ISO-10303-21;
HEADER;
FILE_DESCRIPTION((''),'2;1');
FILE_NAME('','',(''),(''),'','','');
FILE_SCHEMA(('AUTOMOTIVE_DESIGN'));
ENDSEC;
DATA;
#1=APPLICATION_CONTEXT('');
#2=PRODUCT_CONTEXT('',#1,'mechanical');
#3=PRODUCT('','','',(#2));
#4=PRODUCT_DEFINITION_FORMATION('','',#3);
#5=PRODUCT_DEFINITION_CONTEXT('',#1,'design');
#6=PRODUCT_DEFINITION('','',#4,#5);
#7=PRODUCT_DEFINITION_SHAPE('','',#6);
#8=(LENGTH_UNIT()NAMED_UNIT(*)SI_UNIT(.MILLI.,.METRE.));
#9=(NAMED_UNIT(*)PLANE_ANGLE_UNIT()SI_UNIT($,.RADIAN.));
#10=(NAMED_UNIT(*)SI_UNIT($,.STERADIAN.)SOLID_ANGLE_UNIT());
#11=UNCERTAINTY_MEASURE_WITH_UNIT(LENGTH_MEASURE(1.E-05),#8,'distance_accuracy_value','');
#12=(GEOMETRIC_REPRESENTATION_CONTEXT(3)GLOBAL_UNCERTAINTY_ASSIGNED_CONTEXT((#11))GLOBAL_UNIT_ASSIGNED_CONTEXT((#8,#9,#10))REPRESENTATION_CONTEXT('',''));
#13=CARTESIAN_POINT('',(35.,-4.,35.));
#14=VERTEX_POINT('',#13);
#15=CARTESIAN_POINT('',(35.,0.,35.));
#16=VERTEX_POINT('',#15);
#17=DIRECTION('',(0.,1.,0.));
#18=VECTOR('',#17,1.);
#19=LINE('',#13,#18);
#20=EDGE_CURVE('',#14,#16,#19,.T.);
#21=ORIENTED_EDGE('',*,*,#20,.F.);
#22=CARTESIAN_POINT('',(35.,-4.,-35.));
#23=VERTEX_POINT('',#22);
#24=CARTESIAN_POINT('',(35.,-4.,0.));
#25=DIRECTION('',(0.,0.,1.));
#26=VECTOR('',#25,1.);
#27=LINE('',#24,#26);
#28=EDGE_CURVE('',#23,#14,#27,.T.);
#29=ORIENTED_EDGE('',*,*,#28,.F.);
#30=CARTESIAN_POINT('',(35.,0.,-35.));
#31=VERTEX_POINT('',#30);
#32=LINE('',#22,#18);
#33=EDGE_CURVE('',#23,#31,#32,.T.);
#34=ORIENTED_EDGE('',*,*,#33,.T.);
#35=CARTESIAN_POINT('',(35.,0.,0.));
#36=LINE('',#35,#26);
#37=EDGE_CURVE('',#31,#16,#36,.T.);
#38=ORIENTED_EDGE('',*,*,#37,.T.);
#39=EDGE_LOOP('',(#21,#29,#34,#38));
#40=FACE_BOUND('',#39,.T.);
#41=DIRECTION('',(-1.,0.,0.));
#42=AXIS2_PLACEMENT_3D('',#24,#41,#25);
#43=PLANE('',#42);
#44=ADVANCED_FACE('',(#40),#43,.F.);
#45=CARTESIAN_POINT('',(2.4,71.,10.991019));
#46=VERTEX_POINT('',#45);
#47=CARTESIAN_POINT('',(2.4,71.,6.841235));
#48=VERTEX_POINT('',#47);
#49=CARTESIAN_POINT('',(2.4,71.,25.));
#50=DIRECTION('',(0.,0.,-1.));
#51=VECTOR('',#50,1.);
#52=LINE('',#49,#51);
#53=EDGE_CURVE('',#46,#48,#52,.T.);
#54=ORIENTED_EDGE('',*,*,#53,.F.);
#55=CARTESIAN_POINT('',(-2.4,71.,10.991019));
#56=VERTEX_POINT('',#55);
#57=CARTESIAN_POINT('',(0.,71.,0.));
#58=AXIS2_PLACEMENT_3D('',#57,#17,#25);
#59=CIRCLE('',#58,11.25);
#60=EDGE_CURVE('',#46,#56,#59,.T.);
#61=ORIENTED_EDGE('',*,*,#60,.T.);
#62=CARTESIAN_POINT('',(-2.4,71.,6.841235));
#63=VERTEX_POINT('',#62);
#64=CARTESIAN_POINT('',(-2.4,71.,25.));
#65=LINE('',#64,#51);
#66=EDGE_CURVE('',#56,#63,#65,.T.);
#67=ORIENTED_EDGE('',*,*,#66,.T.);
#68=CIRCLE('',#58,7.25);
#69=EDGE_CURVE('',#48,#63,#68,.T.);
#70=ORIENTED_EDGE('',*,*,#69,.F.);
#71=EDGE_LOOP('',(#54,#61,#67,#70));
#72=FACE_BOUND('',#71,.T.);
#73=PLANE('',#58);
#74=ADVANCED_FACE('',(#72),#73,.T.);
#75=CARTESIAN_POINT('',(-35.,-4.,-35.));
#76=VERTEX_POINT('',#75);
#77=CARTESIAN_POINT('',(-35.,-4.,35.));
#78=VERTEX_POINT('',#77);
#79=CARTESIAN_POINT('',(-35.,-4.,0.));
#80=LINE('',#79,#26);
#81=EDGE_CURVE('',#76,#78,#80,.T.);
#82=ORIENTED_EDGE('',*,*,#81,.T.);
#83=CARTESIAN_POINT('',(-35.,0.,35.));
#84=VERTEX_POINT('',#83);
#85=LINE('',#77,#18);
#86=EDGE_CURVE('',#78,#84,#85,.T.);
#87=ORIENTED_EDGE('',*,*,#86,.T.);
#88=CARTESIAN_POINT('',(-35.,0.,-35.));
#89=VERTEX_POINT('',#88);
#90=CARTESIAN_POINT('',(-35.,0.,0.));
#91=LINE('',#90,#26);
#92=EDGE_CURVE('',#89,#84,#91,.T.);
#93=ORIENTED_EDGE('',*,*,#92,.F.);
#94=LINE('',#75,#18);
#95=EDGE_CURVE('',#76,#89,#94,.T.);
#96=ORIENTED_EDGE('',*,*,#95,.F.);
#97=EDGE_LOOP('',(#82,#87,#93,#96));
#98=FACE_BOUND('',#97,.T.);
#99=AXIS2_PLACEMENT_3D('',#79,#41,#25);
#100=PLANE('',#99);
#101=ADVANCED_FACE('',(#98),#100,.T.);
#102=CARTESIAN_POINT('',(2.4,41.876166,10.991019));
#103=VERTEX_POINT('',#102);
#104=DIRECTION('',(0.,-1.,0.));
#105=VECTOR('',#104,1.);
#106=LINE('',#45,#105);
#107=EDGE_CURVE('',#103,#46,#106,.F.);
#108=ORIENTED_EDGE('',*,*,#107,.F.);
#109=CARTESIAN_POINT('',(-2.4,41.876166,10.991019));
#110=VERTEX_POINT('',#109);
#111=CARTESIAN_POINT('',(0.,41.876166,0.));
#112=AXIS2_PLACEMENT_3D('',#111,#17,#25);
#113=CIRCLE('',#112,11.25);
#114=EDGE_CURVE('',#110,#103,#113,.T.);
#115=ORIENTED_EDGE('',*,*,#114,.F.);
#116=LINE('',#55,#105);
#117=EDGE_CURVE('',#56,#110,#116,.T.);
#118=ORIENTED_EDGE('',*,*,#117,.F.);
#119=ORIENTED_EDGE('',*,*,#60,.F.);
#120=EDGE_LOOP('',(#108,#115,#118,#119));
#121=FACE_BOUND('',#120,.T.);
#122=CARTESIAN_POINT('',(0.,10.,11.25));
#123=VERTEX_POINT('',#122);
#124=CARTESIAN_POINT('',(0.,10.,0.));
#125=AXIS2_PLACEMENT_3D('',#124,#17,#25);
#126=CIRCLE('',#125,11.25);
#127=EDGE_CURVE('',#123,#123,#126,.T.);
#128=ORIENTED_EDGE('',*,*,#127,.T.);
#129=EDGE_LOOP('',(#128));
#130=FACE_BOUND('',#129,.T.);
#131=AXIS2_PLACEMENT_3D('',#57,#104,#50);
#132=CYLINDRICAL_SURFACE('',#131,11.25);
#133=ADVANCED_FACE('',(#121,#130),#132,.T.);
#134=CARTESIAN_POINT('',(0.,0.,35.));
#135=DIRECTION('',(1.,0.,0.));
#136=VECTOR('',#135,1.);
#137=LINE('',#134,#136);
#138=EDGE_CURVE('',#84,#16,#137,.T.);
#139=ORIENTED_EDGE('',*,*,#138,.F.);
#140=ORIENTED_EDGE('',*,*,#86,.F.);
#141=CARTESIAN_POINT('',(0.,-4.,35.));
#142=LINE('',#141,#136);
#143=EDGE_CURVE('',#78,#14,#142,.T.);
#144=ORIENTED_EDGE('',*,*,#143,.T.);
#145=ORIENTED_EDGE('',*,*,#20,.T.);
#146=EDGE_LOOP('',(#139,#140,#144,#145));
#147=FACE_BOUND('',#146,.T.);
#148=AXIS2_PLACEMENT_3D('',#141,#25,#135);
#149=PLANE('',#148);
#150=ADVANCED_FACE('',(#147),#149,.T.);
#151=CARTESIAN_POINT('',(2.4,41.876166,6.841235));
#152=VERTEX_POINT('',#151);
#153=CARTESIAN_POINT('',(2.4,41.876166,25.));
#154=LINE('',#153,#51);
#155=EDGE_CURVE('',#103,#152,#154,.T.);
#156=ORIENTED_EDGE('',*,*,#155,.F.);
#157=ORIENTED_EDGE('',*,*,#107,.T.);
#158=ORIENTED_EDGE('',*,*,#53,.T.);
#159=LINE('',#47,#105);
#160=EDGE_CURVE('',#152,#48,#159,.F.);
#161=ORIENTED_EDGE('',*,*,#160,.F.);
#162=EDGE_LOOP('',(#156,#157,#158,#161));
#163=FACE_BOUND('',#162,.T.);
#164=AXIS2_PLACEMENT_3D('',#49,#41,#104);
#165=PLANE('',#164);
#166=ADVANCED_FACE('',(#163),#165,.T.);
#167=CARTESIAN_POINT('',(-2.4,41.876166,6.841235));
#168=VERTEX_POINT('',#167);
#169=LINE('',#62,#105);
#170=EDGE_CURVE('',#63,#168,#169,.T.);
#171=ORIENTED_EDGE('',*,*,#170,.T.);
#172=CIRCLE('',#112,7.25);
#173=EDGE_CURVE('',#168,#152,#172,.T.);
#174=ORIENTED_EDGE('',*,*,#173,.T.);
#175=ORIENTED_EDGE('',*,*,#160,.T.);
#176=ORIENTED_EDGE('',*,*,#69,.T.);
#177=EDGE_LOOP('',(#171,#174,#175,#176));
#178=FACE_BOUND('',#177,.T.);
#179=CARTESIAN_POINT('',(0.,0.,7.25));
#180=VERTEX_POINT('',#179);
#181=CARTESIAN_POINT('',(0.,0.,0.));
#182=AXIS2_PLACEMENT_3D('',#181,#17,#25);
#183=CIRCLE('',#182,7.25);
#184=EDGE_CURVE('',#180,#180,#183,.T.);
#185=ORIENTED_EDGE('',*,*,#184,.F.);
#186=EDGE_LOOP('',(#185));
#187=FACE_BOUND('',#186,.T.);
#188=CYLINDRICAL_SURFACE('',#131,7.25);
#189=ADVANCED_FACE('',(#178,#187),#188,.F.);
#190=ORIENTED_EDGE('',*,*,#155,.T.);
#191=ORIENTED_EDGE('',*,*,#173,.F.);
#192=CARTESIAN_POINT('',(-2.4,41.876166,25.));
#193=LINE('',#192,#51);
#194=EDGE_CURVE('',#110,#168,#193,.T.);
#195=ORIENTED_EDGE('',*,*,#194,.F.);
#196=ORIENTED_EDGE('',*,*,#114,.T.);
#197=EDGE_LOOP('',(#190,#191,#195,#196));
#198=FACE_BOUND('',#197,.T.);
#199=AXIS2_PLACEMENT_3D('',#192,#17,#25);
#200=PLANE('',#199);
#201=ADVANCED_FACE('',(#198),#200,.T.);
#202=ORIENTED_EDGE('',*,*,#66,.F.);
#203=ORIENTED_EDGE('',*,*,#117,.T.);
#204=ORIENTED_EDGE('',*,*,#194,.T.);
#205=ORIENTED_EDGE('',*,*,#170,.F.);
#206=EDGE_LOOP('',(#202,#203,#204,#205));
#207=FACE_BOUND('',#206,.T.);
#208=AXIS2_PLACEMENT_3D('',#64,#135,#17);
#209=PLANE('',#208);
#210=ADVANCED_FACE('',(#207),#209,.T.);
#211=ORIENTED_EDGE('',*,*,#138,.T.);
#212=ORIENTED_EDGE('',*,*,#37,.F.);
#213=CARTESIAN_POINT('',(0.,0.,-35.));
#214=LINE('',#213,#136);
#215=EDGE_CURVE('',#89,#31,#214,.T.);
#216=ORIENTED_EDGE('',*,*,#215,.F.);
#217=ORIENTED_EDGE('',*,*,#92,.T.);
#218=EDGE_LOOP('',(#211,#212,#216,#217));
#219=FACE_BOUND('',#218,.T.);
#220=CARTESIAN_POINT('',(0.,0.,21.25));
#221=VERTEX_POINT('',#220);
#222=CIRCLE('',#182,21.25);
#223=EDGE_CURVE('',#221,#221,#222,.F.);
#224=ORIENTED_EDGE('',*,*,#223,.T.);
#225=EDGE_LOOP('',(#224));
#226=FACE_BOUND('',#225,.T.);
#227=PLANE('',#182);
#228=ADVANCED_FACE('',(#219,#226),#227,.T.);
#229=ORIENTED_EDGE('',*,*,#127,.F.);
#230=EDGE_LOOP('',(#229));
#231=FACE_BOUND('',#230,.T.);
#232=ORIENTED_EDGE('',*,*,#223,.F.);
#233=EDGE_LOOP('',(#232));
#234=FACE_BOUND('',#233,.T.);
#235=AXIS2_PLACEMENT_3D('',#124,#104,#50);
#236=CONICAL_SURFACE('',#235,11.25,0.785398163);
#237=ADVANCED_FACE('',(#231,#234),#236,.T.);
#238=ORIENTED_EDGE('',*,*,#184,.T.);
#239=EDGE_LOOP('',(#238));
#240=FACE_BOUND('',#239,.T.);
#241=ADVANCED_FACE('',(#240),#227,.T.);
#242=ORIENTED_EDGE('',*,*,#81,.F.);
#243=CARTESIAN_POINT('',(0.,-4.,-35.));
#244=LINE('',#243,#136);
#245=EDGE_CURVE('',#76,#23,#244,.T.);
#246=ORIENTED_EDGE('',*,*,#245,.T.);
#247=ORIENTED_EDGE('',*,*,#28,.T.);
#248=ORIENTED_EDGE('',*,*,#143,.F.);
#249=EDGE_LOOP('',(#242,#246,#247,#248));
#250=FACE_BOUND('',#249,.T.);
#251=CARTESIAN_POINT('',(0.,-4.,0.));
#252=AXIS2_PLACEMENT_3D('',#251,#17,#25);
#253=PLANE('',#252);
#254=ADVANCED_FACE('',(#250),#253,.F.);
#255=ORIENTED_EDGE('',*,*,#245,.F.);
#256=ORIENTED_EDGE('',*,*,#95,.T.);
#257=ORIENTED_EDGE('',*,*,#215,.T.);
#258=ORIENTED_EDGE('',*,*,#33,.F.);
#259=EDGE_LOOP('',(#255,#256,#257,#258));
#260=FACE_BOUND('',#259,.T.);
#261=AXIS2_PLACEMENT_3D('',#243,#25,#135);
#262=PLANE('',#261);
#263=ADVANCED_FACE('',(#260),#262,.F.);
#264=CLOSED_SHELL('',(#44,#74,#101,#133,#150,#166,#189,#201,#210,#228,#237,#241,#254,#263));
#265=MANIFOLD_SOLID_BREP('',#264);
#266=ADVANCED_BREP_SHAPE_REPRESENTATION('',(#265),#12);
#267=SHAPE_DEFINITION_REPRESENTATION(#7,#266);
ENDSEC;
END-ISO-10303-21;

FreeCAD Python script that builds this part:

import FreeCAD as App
import Part
import Sketcher
from FreeCAD import Vector


def edges_at(feature, points):
    """Names of the edges that pass closest to the given points."""
    edges = feature.Shape.Edges
    near = lambda p: min(range(len(edges)), key=lambda i: edges[i].distToShape(Part.Vertex(*p))[0])
    return sorted({f"Edge{near(p) + 1}" for p in points})


def add_polygon(sketch, points):
    """Adds a closed chain of lines whose ends are joined by coincident constraints."""
    first, n = sketch.GeometryCount, len(points)
    for a, b in zip(points, points[1:] + points[:1]):
        sketch.addGeometry(Part.LineSegment(App.Vector(*a, 0), App.Vector(*b, 0)), False)
    for i in range(n):
        sketch.addConstraint(Sketcher.Constraint("Coincident", first + i, 2, first + (i + 1) % n, 1))

doc = App.newDocument("Part")
body = doc.addObject("PartDesign::Body", "Body")

# Sketch on XZ plane
sketch1 = body.newObject("Sketcher::SketchObject", "Sketch")
sketch1.AttachmentSupport = (doc.getObject("XZ_Plane"), [""])
sketch1.MapMode = "FlatFace"
sketch1.addGeometry([
    Part.Circle(Vector(0, 0, 0), Vector(0, 0, 1), 11),
    Part.Circle(Vector(0, 0, 0), Vector(0, 0, 1), 7),
], False)
sketch1.addConstraint([
    Sketcher.Constraint("Coincident", 0, 3, -1, 1),
    Sketcher.Constraint("Coincident", 1, 3, -1, 1),
    Sketcher.Constraint("Diameter", 0, 22.5),
    Sketcher.Constraint("Diameter", 1, 14.5),
])
pad1 = body.newObject("PartDesign::Pad", "Pad")
pad1.Profile = sketch1
pad1.Length = 71
pad1.Reversed = True

# Sketch on XZ plane
sketch2 = body.newObject("Sketcher::SketchObject", "Sketch001")
sketch2.AttachmentSupport = (doc.getObject("XZ_Plane"), [""])
sketch2.MapMode = "FlatFace"
sketch2.AttachmentOffset = App.Placement(Vector(0, 0, 4), App.Rotation())
add_polygon(sketch2, [(-35, -35), (-35, 35), (35, 35), (35, -35)])  # lines 0-3
sketch2.addConstraint([
    Sketcher.Constraint("Vertical", 0),
    Sketcher.Constraint("Horizontal", 1),
    Sketcher.Constraint("Vertical", 2),
    Sketcher.Constraint("Horizontal", 3),
    Sketcher.Constraint("Symmetric", 0, 2, 2, 2, -1, 1),
    Sketcher.Constraint("Equal", 3, 0),
    Sketcher.Constraint("DistanceX", 1, 1, 1, 2, 70.0),
])
pad2 = body.newObject("PartDesign::Pad", "Pad001")
pad2.Profile = sketch2
pad2.Length = 4
pad2.Reversed = True
doc.recompute()

chamfer = body.newObject("PartDesign::Chamfer", "Chamfer")
chamfer.Base = (pad2, edges_at(pad2, [(0, 0, -11.25)]))
chamfer.Size = 10

# Sketch on XY plane
sketch3 = body.newObject("Sketcher::SketchObject", "Sketch002")
sketch3.AttachmentSupport = (doc.getObject("XY_Plane"), [""])
sketch3.MapMode = "FlatFace"
add_polygon(sketch3, [(-2.4, 71), (-2.4, 41.9), (2.4, 41.9), (2.4, 71)])  # lines 0-3
sketch3.addConstraint([
    Sketcher.Constraint("Vertical", 0),
    Sketcher.Constraint("Horizontal", 1),
    Sketcher.Constraint("Vertical", 2),
    Sketcher.Constraint("Horizontal", 3),
    Sketcher.Constraint("DistanceX", 1, 1, 1, 2, 4.8),
    Sketcher.Constraint("DistanceY", -1, 1, 2, 2, 71.0),
    Sketcher.Constraint("DistanceX", 0, 2, -1, 1, 2.4),
    Sketcher.Constraint("DistanceY", 0, 2, 0, 1, 29.123834),
])
pocket1 = body.newObject("PartDesign::Pocket", "Pocket")
pocket1.Profile = sketch3
pocket1.Length = 25
pocket1.Reversed = True

doc.recompute()
